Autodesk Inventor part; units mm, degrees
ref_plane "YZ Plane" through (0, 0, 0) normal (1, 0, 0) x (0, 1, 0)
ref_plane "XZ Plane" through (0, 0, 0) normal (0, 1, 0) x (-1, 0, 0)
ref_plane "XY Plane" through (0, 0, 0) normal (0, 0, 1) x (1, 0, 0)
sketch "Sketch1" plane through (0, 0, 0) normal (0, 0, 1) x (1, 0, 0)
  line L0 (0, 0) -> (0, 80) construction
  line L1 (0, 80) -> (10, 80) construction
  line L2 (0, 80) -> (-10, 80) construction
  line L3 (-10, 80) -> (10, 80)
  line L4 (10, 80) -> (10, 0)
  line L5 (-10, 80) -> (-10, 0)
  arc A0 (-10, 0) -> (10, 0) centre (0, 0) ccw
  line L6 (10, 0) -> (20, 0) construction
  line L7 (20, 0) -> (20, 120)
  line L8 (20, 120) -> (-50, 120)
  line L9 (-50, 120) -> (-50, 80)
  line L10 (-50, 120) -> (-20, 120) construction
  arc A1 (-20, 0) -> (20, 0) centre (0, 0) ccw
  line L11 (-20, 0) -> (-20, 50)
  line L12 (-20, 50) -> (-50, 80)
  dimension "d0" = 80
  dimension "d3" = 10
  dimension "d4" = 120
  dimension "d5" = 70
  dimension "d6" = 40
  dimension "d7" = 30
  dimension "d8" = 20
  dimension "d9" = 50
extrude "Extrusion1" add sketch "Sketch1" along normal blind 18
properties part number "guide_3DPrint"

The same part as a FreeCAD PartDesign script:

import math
import FreeCAD as App
import Part
import Sketcher
Q = App.Units.Quantity

doc = App.newDocument("Part")
body = doc.addObject("PartDesign::Body", "Body")

# Sketch on XY plane
sketch1 = body.newObject("Sketcher::SketchObject", "Sketch")
sketch1.AttachmentSupport = (doc.getObject("XY_Plane"), [""])
sketch1.MapMode = "FlatFace"
sketch1.addGeometry([
    Part.ArcOfCircle(Part.Circle(App.Vector(0, 0, 0), App.Vector(0, 0, 1), 20), math.radians(180), math.radians(360)),  # 0
    Part.LineSegment(App.Vector(20, 0, 0), App.Vector(20, 120, 0)),  # 1
    Part.LineSegment(App.Vector(20, 120, 0), App.Vector(-50, 120, 0)),  # 2
    Part.LineSegment(App.Vector(-50, 120, 0), App.Vector(-50, 80, 0)),  # 3
    Part.LineSegment(App.Vector(-50, 80, 0), App.Vector(-20, 50, 0)),  # 4
    Part.LineSegment(App.Vector(-20, 50, 0), App.Vector(-20, 0, 0)),  # 5
    Part.LineSegment(App.Vector(-10, 0, 0), App.Vector(-10, 80, 0)),  # 6
    Part.LineSegment(App.Vector(-10, 80, 0), App.Vector(10, 80, 0)),  # 7
    Part.LineSegment(App.Vector(10, 80, 0), App.Vector(10, 0, 0)),  # 8
    Part.ArcOfCircle(Part.Circle(App.Vector(0, 0, 0), App.Vector(0, 0, 1), 10), math.radians(180), math.radians(360)),  # 9
], False)
sketch1.addConstraint([
    Sketcher.Constraint("Tangent", 0, 2, 1, 1),
    Sketcher.Constraint("Coincident", 1, 2, 2, 1),
    Sketcher.Constraint("Coincident", 2, 2, 3, 1),
    Sketcher.Constraint("Coincident", 3, 2, 4, 1),
    Sketcher.Constraint("Coincident", 4, 2, 5, 1),
    Sketcher.Constraint("Tangent", 5, 2, 0, 1),
    Sketcher.Constraint("Coincident", 6, 2, 7, 1),
    Sketcher.Constraint("Coincident", 7, 2, 8, 1),
    Sketcher.Constraint("Tangent", 8, 2, 9, 2),
    Sketcher.Constraint("Tangent", 9, 1, 6, 1),
    Sketcher.Constraint("Vertical", 1),
    Sketcher.Constraint("Horizontal", 2),
    Sketcher.Constraint("Vertical", 3),
    Sketcher.Constraint("Vertical", 5),
    Sketcher.Constraint("Vertical", 6),
    Sketcher.Constraint("Horizontal", 7),
    Sketcher.Constraint("Vertical", 8),
    Sketcher.Constraint("Coincident", 0, 3, -1, 1),
    Sketcher.Constraint("Coincident", 9, 3, -1, 1),
    Sketcher.Constraint("Horizontal", 3, 2, 6, 2),
    Sketcher.Constraint("Radius", 0, Q("20 mm")),
    Sketcher.Constraint("Radius", 9, Q("10 mm")),
    Sketcher.Constraint("DistanceX", 2, 2, 2, 1, Q("70 mm")),
    Sketcher.Constraint("DistanceY", 1, 1, 1, 2, Q("120 mm")),
    Sketcher.Constraint("DistanceY", 3, 2, 3, 1, Q("40 mm")),
    Sketcher.Constraint("DistanceY", 5, 2, 5, 1, Q("50 mm")),
])
pad1 = body.newObject("PartDesign::Pad", "Pad")
pad1.Profile = sketch1
pad1.Length = 18

doc.recompute()
